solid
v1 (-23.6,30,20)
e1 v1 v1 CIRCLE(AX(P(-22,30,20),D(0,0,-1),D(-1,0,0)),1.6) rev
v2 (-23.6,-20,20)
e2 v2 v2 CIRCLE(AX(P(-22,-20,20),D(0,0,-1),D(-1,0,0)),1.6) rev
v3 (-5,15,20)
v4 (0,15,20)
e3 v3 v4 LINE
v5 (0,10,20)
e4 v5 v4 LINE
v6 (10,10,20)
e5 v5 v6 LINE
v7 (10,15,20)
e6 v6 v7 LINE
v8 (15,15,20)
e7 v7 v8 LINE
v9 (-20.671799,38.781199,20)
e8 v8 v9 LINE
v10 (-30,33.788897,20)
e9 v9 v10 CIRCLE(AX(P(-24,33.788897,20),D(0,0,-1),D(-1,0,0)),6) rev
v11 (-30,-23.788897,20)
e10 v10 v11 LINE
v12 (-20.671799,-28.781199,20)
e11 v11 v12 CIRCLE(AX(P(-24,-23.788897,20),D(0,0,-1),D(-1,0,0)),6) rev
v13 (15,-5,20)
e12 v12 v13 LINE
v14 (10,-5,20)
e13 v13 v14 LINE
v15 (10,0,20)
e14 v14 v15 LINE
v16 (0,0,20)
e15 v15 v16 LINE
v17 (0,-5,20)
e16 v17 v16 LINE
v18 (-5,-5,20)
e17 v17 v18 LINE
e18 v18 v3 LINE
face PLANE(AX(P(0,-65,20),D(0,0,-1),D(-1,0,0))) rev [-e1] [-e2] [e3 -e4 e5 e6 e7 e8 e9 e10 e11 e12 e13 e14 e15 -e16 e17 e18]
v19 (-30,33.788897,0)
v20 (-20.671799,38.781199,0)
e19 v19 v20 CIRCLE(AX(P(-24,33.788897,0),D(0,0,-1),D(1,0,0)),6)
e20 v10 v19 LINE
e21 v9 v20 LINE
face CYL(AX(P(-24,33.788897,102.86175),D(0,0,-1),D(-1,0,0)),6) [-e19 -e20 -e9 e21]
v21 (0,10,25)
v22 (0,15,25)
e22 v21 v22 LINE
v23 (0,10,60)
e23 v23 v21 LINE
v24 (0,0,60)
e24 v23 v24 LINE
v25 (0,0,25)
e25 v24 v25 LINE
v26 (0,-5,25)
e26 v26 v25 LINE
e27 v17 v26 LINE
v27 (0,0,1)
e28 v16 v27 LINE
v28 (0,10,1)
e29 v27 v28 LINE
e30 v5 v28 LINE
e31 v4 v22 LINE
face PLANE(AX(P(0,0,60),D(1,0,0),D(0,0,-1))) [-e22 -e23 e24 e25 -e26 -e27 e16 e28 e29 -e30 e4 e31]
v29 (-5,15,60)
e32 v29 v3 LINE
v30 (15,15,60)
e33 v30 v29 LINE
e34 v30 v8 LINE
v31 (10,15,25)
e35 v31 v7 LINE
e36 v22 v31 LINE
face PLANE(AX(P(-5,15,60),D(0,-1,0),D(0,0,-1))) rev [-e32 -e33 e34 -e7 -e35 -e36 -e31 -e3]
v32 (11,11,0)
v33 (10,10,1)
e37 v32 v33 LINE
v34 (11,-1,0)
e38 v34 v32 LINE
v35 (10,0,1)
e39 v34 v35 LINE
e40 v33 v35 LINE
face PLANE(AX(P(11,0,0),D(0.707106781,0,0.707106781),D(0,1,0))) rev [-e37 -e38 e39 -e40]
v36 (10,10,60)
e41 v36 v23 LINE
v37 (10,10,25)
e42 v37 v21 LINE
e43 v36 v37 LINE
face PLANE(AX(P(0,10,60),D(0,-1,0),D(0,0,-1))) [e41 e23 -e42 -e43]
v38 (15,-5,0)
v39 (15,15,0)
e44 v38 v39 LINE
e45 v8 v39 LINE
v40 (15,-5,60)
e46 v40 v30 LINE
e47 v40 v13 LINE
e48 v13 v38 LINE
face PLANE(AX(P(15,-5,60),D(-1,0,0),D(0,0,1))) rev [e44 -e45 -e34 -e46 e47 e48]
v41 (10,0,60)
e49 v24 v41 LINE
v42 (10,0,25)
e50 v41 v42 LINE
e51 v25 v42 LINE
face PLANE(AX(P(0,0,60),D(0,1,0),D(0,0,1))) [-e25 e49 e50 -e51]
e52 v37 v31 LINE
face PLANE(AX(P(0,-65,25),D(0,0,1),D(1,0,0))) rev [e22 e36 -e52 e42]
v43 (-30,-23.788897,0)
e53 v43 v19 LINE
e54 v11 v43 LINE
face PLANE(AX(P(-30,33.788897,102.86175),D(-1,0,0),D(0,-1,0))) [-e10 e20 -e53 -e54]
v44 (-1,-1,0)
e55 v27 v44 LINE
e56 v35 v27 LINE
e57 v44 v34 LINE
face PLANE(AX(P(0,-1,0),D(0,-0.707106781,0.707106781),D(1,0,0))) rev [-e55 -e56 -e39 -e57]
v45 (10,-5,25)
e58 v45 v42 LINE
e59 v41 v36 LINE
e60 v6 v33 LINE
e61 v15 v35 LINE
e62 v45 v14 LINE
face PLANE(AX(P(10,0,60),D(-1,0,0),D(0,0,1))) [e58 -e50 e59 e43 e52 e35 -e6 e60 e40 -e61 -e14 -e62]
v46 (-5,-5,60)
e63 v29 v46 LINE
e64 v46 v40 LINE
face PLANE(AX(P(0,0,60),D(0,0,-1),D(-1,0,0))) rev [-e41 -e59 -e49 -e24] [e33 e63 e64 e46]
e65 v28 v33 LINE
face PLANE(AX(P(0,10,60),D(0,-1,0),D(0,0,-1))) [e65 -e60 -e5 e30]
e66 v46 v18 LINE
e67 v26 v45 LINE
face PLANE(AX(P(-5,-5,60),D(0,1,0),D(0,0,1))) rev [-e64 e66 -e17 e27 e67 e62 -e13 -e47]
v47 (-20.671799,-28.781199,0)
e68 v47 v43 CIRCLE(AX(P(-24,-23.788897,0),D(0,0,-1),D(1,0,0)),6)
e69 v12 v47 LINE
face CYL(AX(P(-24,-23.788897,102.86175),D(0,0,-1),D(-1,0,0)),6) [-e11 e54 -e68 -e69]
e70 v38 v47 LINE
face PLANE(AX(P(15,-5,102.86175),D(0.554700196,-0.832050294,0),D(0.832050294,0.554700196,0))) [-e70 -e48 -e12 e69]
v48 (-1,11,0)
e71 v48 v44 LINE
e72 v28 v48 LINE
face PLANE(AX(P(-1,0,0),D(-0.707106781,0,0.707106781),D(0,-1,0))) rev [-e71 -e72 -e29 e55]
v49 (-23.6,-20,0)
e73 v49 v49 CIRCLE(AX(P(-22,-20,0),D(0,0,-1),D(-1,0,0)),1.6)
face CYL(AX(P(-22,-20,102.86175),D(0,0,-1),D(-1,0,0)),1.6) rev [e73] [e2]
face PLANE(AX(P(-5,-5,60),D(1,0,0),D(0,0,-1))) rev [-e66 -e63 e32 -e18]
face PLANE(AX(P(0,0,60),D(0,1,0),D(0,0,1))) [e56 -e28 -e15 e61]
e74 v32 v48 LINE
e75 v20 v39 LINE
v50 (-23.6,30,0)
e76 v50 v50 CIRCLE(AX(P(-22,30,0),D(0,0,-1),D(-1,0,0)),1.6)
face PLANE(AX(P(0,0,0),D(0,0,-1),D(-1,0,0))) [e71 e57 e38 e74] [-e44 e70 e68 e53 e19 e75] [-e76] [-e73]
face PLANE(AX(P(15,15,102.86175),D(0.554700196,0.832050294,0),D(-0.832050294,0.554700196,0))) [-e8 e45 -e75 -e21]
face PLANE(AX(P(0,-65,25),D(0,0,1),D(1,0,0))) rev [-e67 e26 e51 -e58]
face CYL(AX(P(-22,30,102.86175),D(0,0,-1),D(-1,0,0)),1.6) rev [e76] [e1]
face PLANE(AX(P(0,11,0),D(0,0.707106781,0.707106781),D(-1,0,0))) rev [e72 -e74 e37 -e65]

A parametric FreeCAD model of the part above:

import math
import FreeCAD as App
import Part
import Sketcher
Q = App.Units.Quantity


def edges_at(feature, points):
    """Names of the edges that pass closest to the given points."""
    edges = feature.Shape.Edges
    near = lambda p: min(range(len(edges)), key=lambda i: edges[i].distToShape(Part.Vertex(*p))[0])
    return sorted({f"Edge{near(p) + 1}" for p in points})

doc = App.newDocument("Part")
body = doc.addObject("PartDesign::Body", "Body")

# Sketch on XY plane
sketch1 = body.newObject("Sketcher::SketchObject", "Sketch")
sketch1.AttachmentSupport = (doc.getObject("XY_Plane"), [""])
sketch1.MapMode = "FlatFace"
sketch1.addGeometry([
    Part.LineSegment(App.Vector(-5, 15, 0), App.Vector(-5, -5, 0)),  # 0
    Part.LineSegment(App.Vector(-5, -5, 0), App.Vector(15, -5, 0)),  # 1
    Part.LineSegment(App.Vector(15, -5, 0), App.Vector(15, 15, 0)),  # 2
    Part.LineSegment(App.Vector(15, 15, 0), App.Vector(-5, 15, 0)),  # 3
    Part.LineSegment(App.Vector(10, 0, 0), App.Vector(0, 0, 0)),  # 4
    Part.LineSegment(App.Vector(0, 0, 0), App.Vector(0, 10, 0)),  # 5
    Part.LineSegment(App.Vector(0, 10, 0), App.Vector(10, 10, 0)),  # 6
    Part.LineSegment(App.Vector(10, 10, 0), App.Vector(10, 0, 0)),  # 7
], False)
sketch1.addConstraint([
    Sketcher.Constraint("Coincident", 0, 2, 1, 1),
    Sketcher.Constraint("Coincident", 1, 2, 2, 1),
    Sketcher.Constraint("Coincident", 2, 2, 3, 1),
    Sketcher.Constraint("Coincident", 3, 2, 0, 1),
    Sketcher.Constraint("Coincident", 4, 2, 5, 1),
    Sketcher.Constraint("Coincident", 5, 2, 6, 1),
    Sketcher.Constraint("Coincident", 6, 2, 7, 1),
    Sketcher.Constraint("Coincident", 7, 2, 4, 1),
    Sketcher.Constraint("Vertical", 0),
    Sketcher.Constraint("Horizontal", 1),
    Sketcher.Constraint("Vertical", 2),
    Sketcher.Constraint("Horizontal", 3),
    Sketcher.Constraint("Horizontal", 4),
    Sketcher.Constraint("Vertical", 5),
    Sketcher.Constraint("Horizontal", 6),
    Sketcher.Constraint("Vertical", 7),
    Sketcher.Constraint("Coincident", 4, 2, -1, 1),
    Sketcher.Constraint("Equal", 3, 0),
    Sketcher.Constraint("Equal", 6, 5),
    Sketcher.Constraint("DistanceX", 1, 1, 1, 2, Q("20 mm")),
    Sketcher.Constraint("DistanceX", 4, 2, 4, 1, Q("10 mm")),
    Sketcher.Constraint("DistanceX", 0, 2, -1, 1, Q("5 mm")),
    Sketcher.Constraint("DistanceY", 0, 2, -1, 1, Q("5 mm")),
])
pad1 = body.newObject("PartDesign::Pad", "Pad")
pad1.Profile = sketch1
pad1.Length = 60

# Sketch on XZ plane
sketch2 = body.newObject("Sketcher::SketchObject", "Sketch001")
sketch2.AttachmentSupport = (doc.getObject("XZ_Plane"), [""])
sketch2.MapMode = "FlatFace"
sketch2.AttachmentOffset = App.Placement(App.Vector(0, 0, -15), App.Rotation())
sketch2.addGeometry([
    Part.LineSegment(App.Vector(0, 20, 0), App.Vector(0, 25, 0)),
    Part.LineSegment(App.Vector(0, 25, 0), App.Vector(10, 25, 0)),
    Part.LineSegment(App.Vector(10, 25, 0), App.Vector(10, 20, 0)),
    Part.LineSegment(App.Vector(10, 20, 0), App.Vector(0, 20, 0)),
], False)
sketch2.addConstraint([
    Sketcher.Constraint("Coincident", 0, 2, 1, 1),
    Sketcher.Constraint("Coincident", 1, 2, 2, 1),
    Sketcher.Constraint("Coincident", 2, 2, 3, 1),
    Sketcher.Constraint("Coincident", 3, 2, 0, 1),
    Sketcher.Constraint("Vertical", 0),
    Sketcher.Constraint("Horizontal", 1),
    Sketcher.Constraint("Vertical", 2),
    Sketcher.Constraint("Horizontal", 3),
    Sketcher.Constraint("PointOnObject", 0, 2, -2),
    Sketcher.Constraint("DistanceX", 1, 1, 1, 2, Q("10 mm")),
    Sketcher.Constraint("DistanceY", 0, 1, 0, 2, Q("5 mm")),
    Sketcher.Constraint("DistanceY", -1, 1, 0, 2, Q("25 mm")),
])
pocket1 = body.newObject("PartDesign::Pocket", "Pocket")
pocket1.Profile = sketch2
pocket1.Length = 80
pocket1.Reversed = True

# Sketch on XY plane
sketch3 = body.newObject("Sketcher::SketchObject", "Sketch002")
sketch3.AttachmentSupport = (doc.getObject("XY_Plane"), [""])
sketch3.MapMode = "FlatFace"
sketch3.addGeometry([
    Part.LineSegment(App.Vector(-30, -23.8, 0), App.Vector(-30, 33.8, 0)),  # 0
    Part.ArcOfCircle(Part.Circle(App.Vector(-24, 33.8, 0), App.Vector(0, 0, 1), 6), math.radians(56), math.radians(180)),  # 1
    Part.LineSegment(App.Vector(-20.7, 38.8, 0), App.Vector(15, 15, 0)),  # 2
    Part.LineSegment(App.Vector(15, 15, 0), App.Vector(-5, 15, 0)),  # 3
    Part.LineSegment(App.Vector(-5, 15, 0), App.Vector(-5, -5, 0)),  # 4
    Part.LineSegment(App.Vector(-5, -5, 0), App.Vector(15, -5, 0)),  # 5
    Part.LineSegment(App.Vector(15, -5, 0), App.Vector(-20.7, -28.8, 0)),  # 6
    Part.ArcOfCircle(Part.Circle(App.Vector(-24, -23.8, 0), App.Vector(0, 0, 1), 6), math.radians(180), math.radians(304)),  # 7
    Part.Circle(App.Vector(-22, -20, 0), App.Vector(0, 0, 1), 1.6),  # 8
    Part.Circle(App.Vector(-22, 30, 0), App.Vector(0, 0, 1), 1.6),  # 9
], False)
sketch3.addConstraint([
    Sketcher.Constraint("Tangent", 0, 2, 1, 2),
    Sketcher.Constraint("Tangent", 1, 1, 2, 1),
    Sketcher.Constraint("Coincident", 2, 2, 3, 1),
    Sketcher.Constraint("Coincident", 3, 2, 4, 1),
    Sketcher.Constraint("Coincident", 4, 2, 5, 1),
    Sketcher.Constraint("Coincident", 5, 2, 6, 1),
    Sketcher.Constraint("Tangent", 6, 2, 7, 2),
    Sketcher.Constraint("Tangent", 7, 1, 0, 1),
    Sketcher.Constraint("Vertical", 0),
    Sketcher.Constraint("Horizontal", 3),
    Sketcher.Constraint("Vertical", 4),
    Sketcher.Constraint("Horizontal", 5),
    Sketcher.Constraint("Equal", 1, 7),
    Sketcher.Constraint("Equal", 8, 9),
    Sketcher.Constraint("Vertical", 8, 3, 9, 3),
    Sketcher.Constraint("Vertical", 2, 2, 5, 2),
    Sketcher.Constraint("Vertical", 1, 1, 6, 2),
    Sketcher.Constraint("Equal", 5, 4),
    Sketcher.Constraint("Radius", 1, Q("6 mm")),
    Sketcher.Constraint("Diameter", 8, Q("3.2 mm")),
    Sketcher.Constraint("DistanceX", 3, 2, 3, 1, Q("20 mm")),
    Sketcher.Constraint("DistanceX", 1, 3, -1, 1, Q("24 mm")),
    Sketcher.Constraint("DistanceX", 8, 3, -1, 1, Q("22 mm")),
    Sketcher.Constraint("DistanceY", 8, 3, -1, 1, Q("20 mm")),
    Sketcher.Constraint("DistanceY", -1, 1, 9, 3, Q("30 mm")),
    Sketcher.Constraint("DistanceX", -1, 1, 2, 2, Q("15 mm")),
    Sketcher.Constraint("DistanceY", -1, 1, 2, 2, Q("15 mm")),
    Sketcher.Constraint("DistanceX", 1, 1, -1, 1, Q("20.671799 mm")),
])
pad2 = body.newObject("PartDesign::Pad", "Pad001")
pad2.Profile = sketch3
pad2.Length = 20
doc.recompute()

chamfer = body.newObject("PartDesign::Chamfer", "Chamfer")
chamfer.Base = (pad2, edges_at(pad2, [
    (0, 5, 0),
    (5, 0, 0),
    (10, 5, 0),
    (5, 10, 0),
]))
chamfer.Size = 1

doc.recompute()
